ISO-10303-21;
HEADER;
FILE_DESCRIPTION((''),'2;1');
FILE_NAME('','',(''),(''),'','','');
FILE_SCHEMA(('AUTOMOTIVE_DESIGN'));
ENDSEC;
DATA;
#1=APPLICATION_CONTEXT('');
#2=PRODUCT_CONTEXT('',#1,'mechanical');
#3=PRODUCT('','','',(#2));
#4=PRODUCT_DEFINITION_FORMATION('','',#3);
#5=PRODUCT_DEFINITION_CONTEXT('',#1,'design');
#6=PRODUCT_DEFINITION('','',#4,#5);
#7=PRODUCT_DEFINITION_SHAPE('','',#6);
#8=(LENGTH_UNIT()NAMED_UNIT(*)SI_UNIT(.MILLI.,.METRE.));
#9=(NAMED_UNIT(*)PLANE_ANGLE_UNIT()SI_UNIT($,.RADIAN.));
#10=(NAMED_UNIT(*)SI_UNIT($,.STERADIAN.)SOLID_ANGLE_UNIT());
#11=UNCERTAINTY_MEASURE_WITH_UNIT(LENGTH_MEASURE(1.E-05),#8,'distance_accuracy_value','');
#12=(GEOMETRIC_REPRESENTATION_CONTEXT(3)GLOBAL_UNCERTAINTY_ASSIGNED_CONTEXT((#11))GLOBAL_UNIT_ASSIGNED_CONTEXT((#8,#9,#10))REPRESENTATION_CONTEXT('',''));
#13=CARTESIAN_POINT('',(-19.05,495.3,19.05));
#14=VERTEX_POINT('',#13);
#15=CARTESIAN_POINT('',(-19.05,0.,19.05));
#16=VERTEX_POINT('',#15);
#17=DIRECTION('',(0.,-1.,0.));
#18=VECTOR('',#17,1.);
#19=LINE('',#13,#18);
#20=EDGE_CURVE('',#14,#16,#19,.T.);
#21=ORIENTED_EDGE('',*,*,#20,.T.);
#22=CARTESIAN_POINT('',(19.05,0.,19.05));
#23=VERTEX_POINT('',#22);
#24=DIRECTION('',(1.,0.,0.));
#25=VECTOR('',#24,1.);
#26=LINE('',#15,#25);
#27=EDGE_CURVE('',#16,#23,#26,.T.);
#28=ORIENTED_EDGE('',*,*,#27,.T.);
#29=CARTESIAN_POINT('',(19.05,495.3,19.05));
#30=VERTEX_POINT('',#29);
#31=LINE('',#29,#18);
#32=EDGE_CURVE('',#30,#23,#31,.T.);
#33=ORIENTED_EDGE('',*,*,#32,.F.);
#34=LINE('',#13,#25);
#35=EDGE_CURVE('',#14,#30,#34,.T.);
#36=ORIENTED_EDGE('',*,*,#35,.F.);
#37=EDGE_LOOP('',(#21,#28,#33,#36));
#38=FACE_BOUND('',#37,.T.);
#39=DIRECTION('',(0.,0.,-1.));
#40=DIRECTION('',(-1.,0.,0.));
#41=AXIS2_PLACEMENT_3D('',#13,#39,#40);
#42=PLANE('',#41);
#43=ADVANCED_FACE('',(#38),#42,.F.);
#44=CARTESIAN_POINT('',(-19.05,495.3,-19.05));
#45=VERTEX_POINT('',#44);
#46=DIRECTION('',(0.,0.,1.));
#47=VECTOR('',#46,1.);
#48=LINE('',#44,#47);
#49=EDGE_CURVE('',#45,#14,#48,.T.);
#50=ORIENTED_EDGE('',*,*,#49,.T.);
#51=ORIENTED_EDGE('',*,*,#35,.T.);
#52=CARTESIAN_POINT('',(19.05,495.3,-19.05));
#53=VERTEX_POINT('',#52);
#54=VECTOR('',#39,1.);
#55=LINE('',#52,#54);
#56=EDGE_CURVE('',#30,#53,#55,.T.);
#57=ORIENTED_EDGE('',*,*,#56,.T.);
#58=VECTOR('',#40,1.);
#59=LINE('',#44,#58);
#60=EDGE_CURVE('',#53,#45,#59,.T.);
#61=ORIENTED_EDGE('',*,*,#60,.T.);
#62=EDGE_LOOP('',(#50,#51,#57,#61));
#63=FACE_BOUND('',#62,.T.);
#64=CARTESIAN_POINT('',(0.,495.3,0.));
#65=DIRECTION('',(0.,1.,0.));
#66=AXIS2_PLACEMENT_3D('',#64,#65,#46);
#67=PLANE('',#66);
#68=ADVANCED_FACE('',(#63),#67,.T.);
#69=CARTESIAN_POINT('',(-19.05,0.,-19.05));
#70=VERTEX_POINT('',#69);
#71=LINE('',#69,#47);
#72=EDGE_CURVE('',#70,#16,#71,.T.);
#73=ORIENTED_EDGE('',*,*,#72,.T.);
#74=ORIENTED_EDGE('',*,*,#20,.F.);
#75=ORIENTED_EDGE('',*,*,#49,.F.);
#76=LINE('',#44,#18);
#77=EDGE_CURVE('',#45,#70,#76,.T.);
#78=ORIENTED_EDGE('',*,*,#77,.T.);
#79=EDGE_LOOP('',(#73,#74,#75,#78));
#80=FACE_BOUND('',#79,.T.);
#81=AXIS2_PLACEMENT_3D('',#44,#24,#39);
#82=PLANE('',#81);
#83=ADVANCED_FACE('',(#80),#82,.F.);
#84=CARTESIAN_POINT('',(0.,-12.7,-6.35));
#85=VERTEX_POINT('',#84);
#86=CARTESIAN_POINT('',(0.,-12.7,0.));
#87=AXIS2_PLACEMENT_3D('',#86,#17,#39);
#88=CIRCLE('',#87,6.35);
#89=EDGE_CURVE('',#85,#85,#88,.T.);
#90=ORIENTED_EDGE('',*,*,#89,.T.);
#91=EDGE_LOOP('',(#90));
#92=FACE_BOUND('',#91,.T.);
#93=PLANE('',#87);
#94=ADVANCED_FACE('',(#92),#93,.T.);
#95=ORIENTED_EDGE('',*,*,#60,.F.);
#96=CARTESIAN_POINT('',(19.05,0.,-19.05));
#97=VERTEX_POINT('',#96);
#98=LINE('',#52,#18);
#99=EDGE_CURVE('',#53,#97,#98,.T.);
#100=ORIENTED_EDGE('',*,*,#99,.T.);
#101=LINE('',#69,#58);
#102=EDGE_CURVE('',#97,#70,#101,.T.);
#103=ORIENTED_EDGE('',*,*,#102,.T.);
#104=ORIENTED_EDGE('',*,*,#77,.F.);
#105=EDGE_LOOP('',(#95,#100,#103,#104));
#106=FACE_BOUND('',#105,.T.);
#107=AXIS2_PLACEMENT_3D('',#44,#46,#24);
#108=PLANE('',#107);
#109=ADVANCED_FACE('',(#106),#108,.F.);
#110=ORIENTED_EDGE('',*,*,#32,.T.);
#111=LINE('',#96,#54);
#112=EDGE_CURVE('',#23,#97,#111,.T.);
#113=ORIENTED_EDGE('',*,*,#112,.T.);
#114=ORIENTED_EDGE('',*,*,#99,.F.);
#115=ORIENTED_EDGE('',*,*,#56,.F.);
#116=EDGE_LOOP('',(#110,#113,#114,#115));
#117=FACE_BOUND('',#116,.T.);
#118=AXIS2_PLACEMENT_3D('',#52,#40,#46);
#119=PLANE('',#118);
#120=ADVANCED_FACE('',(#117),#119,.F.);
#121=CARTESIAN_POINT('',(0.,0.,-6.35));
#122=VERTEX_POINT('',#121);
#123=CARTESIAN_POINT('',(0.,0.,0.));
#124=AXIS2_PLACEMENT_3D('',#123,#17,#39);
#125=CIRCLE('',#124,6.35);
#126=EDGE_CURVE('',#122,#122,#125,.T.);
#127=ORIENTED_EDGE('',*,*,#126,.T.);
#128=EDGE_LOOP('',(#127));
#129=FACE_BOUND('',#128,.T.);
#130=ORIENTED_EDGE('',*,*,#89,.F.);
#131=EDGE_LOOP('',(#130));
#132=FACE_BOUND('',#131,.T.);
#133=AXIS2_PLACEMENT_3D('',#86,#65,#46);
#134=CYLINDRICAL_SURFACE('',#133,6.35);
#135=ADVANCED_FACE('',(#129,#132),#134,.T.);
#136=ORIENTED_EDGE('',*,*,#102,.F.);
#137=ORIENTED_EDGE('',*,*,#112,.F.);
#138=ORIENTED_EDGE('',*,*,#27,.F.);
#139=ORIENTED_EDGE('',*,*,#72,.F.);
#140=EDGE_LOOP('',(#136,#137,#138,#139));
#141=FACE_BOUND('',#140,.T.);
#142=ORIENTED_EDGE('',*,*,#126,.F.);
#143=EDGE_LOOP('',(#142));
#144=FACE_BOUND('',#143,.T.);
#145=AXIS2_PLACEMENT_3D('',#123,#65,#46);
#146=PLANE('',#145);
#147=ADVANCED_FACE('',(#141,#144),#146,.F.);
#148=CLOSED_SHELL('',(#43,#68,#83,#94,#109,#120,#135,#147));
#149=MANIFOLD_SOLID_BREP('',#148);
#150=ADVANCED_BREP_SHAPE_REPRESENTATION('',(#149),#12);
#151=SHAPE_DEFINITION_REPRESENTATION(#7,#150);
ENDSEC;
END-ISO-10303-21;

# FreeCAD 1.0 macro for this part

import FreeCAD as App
import Part
import Sketcher

V = App.Vector
Q = App.Units.Quantity

doc = App.newDocument("Part")
body = doc.addObject("PartDesign::Body", "Body")

# Sketch on XZ plane
sketch1 = body.newObject("Sketcher::SketchObject", "Sketch")
sketch1.AttachmentSupport = (doc.getObject("XZ_Plane"), [""])
sketch1.MapMode = "FlatFace"
sketch1.addGeometry(Part.LineSegment(V(-19, -19, 0), V(-19, 19, 0)), False)
sketch1.addGeometry(Part.LineSegment(V(-19, 19, 0), V(19, 19, 0)), False)
sketch1.addGeometry(Part.LineSegment(V(19, 19, 0), V(19, -19, 0)), False)
sketch1.addGeometry(Part.LineSegment(V(19, -19, 0), V(-19, -19, 0)), False)
sketch1.addConstraint(Sketcher.Constraint("Coincident", 0, 2, 1, 1))
sketch1.addConstraint(Sketcher.Constraint("Coincident", 1, 2, 2, 1))
sketch1.addConstraint(Sketcher.Constraint("Coincident", 2, 2, 3, 1))
sketch1.addConstraint(Sketcher.Constraint("Coincident", 3, 2, 0, 1))
sketch1.addConstraint(Sketcher.Constraint("Vertical", 0))
sketch1.addConstraint(Sketcher.Constraint("Horizontal", 1))
sketch1.addConstraint(Sketcher.Constraint("Vertical", 2))
sketch1.addConstraint(Sketcher.Constraint("Horizontal", 3))
sketch1.addConstraint(Sketcher.Constraint("Symmetric", 0, 2, 2, 2, -1, 1))
sketch1.addConstraint(Sketcher.Constraint("Equal", 3, 0))
sketch1.addConstraint(Sketcher.Constraint("DistanceX", 1, 1, 1, 2, Q("1.5 in")))
pad1 = body.newObject("PartDesign::Pad", "Pad")
pad1.Profile = sketch1
pad1.Length = Q("19.5 in")
pad1.Reversed = True

# Sketch on XZ plane
sketch2 = body.newObject("Sketcher::SketchObject", "Sketch001")
sketch2.AttachmentSupport = (doc.getObject("XZ_Plane"), [""])
sketch2.MapMode = "FlatFace"
sketch2.addGeometry(Part.Circle(V(0, 0, 0), V(0, 0, 1), 6), False)
sketch2.addConstraint(Sketcher.Constraint("Coincident", 0, 3, -1, 1))
sketch2.addConstraint(Sketcher.Constraint("Diameter", 0, Q("0.5 in")))
pad2 = body.newObject("PartDesign::Pad", "Pad001")
pad2.Profile = sketch2
pad2.Length = Q("0.5 in")

doc.recompute()
